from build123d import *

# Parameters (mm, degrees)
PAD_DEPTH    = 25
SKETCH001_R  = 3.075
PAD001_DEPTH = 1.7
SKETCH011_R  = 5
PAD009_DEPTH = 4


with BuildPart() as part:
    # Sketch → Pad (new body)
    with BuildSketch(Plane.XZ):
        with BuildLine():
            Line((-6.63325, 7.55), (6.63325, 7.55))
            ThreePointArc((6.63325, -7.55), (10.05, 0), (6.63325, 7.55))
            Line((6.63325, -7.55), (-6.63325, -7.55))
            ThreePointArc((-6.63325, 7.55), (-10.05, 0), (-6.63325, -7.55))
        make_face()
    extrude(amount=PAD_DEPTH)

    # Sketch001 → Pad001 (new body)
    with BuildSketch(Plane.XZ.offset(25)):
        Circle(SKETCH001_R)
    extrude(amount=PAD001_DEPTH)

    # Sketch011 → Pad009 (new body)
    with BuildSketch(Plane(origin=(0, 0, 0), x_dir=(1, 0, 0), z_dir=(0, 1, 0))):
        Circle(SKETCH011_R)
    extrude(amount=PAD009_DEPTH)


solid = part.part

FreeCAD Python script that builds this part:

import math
import FreeCAD as App
import Part
import Sketcher
from FreeCAD import Vector

doc = App.newDocument("Part")
body = doc.addObject("PartDesign::Body", "Body")

# Sketch on XZ plane
sketch1 = body.newObject("Sketcher::SketchObject", "Sketch")
sketch1.AttachmentSupport = (doc.getObject("XZ_Plane"), [""])
sketch1.MapMode = "FlatFace"
sketch1.addGeometry(Part.LineSegment(Vector(6.63325, 7.55, 0), Vector(-6.63325, 7.55, 0)), False)
sketch1.addGeometry(Part.ArcOfCircle(Part.Circle(Vector(0.000001, 0, 0), Vector(0, 0, 1), 10.050001), math.radians(131.301772), math.radians(228.698228)), False)
sketch1.addGeometry(Part.LineSegment(Vector(-6.63325, -7.55, 0), Vector(6.63325, -7.55, 0)), False)
sketch1.addGeometry(Part.ArcOfCircle(Part.Circle(Vector(-0.000001, 0, 0), Vector(0, 0, 1), 10.050001), math.radians(-48.698228), math.radians(48.698228)), False)
sketch1.addConstraint(Sketcher.Constraint("Coincident", 0, 2, 1, 1))
sketch1.addConstraint(Sketcher.Constraint("Coincident", 1, 2, 2, 1))
sketch1.addConstraint(Sketcher.Constraint("Coincident", 2, 2, 3, 1))
sketch1.addConstraint(Sketcher.Constraint("Coincident", 3, 2, 0, 1))
sketch1.addConstraint(Sketcher.Constraint("Horizontal", 0))
sketch1.addConstraint(Sketcher.Constraint("Horizontal", 2))
sketch1.addConstraint(Sketcher.Constraint("Coincident", 1, 3, -1, 1))
sketch1.addConstraint(Sketcher.Constraint("Coincident", 3, 3, -1, 1))
sketch1.addConstraint(Sketcher.Constraint("Equal", 1, 3))
sketch1.addConstraint(Sketcher.Constraint("Vertical", 0, 2, 1, 2))
sketch1.addConstraint(Sketcher.Constraint("Radius", 1, 10.050001))
sketch1.addConstraint(Sketcher.Constraint("DistanceY", 1, 2, 0, 2, 15.1))
pad1 = body.newObject("PartDesign::Pad", "Pad")
pad1.Profile = sketch1
pad1.Length = 25

# Sketch on XZ plane
sketch2 = body.newObject("Sketcher::SketchObject", "Sketch001")
sketch2.AttachmentSupport = (doc.getObject("XZ_Plane"), [""])
sketch2.MapMode = "FlatFace"
sketch2.AttachmentOffset = App.Placement(Vector(0, 0, 25), App.Rotation())
sketch2.addGeometry(Part.Circle(Vector(0, 0, 0), Vector(0, 0, 1), 3.075), False)
sketch2.addConstraint(Sketcher.Constraint("Coincident", 0, 3, -1, 1))
sketch2.addConstraint(Sketcher.Constraint("Diameter", 0, 6.15))
pad2 = body.newObject("PartDesign::Pad", "Pad001")
pad2.Profile = sketch2
pad2.Length = 1.7

# Sketch on XZ plane
sketch3 = body.newObject("Sketcher::SketchObject", "Sketch002")
sketch3.AttachmentSupport = (doc.getObject("XZ_Plane"), [""])
sketch3.MapMode = "FlatFace"
sketch3.addGeometry(Part.Circle(Vector(0, 0, 0), Vector(0, 0, 1), 5), False)
sketch3.addConstraint(Sketcher.Constraint("Coincident", 0, 3, -1, 1))
sketch3.addConstraint(Sketcher.Constraint("Diameter", 0, 10.0))
pad3 = body.newObject("PartDesign::Pad", "Pad002")
pad3.Profile = sketch3
pad3.Length = 4
pad3.Reversed = True

doc.recompute()
